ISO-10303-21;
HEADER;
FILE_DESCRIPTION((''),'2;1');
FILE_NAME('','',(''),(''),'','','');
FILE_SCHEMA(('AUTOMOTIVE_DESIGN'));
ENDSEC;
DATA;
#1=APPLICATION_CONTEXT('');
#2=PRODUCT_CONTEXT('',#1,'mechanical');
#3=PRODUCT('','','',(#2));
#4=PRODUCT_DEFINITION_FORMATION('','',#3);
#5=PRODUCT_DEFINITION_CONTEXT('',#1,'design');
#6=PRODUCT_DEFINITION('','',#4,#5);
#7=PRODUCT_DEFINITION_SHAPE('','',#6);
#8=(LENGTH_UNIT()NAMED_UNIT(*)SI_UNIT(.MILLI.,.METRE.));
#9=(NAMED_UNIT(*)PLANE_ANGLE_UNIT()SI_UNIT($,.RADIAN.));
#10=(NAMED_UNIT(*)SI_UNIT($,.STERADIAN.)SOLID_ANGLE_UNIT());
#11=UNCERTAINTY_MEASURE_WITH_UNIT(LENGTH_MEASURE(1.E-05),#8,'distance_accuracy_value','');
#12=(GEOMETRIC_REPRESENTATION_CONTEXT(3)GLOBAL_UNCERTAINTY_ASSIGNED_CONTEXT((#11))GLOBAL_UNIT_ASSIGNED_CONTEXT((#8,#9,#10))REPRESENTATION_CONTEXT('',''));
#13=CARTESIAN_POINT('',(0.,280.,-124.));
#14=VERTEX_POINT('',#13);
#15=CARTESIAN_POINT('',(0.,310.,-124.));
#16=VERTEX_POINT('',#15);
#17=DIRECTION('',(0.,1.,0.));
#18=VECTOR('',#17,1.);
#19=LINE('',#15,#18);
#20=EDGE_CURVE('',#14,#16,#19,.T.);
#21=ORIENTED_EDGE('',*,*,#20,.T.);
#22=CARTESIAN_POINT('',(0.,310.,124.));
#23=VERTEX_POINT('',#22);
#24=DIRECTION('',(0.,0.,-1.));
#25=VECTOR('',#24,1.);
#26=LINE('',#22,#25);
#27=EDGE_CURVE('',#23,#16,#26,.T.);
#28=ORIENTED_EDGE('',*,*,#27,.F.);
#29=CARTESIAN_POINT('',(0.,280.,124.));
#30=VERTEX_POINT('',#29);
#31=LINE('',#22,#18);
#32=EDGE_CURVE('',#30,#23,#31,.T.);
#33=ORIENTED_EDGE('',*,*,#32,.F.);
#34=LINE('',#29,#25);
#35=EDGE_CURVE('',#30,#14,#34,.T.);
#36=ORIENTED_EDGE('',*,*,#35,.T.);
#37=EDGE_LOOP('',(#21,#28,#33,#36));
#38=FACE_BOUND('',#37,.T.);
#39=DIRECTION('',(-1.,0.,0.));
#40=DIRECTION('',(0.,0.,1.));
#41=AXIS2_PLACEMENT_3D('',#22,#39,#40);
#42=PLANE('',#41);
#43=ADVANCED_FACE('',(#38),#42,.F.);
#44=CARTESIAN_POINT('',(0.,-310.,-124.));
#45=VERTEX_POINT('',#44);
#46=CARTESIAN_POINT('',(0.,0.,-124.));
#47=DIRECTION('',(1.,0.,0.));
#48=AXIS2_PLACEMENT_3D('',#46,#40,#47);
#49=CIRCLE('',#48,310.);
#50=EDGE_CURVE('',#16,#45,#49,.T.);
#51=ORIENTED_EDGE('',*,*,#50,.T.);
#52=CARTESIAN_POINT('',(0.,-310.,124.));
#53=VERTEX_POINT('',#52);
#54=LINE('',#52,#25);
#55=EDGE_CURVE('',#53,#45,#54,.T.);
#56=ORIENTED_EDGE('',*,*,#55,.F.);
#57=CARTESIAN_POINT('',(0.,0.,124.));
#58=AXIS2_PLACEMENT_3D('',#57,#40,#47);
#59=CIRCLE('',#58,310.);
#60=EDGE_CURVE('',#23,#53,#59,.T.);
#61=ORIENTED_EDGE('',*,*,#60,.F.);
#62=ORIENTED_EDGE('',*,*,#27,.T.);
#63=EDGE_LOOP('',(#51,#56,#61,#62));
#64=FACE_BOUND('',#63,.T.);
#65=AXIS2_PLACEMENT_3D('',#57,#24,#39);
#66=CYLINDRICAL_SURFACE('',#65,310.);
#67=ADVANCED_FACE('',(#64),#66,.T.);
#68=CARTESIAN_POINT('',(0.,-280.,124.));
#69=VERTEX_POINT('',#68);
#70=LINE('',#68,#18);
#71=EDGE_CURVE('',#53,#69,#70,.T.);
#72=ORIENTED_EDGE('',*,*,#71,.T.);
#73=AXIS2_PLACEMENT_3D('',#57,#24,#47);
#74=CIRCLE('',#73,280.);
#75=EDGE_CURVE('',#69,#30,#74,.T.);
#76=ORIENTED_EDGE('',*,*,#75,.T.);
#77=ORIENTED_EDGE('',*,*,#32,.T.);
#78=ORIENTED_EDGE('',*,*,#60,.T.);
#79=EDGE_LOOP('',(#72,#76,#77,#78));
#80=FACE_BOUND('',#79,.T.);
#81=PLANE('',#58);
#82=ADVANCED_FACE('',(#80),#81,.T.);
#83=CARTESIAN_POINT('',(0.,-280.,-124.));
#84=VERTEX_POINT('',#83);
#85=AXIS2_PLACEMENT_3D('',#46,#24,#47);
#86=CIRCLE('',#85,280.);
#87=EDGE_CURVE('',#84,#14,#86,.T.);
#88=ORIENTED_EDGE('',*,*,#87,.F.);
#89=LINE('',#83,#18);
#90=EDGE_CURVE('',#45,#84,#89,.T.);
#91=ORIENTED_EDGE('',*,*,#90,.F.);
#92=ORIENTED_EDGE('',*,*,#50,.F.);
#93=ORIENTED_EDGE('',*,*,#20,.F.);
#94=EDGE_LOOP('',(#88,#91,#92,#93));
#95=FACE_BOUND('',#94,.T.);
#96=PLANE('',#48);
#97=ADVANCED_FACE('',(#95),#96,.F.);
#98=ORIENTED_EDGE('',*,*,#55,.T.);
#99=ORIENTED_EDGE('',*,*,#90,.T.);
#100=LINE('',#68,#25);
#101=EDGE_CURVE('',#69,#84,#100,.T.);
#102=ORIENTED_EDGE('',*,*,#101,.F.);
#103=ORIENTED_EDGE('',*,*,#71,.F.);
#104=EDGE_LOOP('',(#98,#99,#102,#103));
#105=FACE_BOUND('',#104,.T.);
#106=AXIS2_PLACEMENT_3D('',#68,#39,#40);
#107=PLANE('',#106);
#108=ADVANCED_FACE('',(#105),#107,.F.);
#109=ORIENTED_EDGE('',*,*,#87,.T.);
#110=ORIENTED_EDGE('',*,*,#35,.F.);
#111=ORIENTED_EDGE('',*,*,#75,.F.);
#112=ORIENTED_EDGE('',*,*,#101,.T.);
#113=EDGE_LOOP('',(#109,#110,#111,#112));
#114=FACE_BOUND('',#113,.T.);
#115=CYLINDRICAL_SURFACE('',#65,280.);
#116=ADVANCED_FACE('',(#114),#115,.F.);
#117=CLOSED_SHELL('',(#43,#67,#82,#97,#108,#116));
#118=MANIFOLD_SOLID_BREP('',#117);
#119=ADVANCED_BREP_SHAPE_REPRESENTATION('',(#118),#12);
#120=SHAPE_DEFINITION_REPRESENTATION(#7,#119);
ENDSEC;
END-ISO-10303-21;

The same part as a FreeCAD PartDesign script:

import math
import FreeCAD as App
import Part
import Sketcher
from FreeCAD import Vector

doc = App.newDocument("Part")
params = doc.addObject("Spreadsheet::Sheet", "Params")
for row, (alias, value) in enumerate([
    ("sketch1_radius", "310 mm"),
    ("sketch1_radius2", "280 mm"),
    ("pad1_length", "124 mm"),
    ("pad1_length2", "124 mm"),
], start=1):
    params.set(f"A{row}", alias)
    params.set(f"B{row}", "=" + value)
    params.setAlias(f"B{row}", alias)

body = doc.addObject("PartDesign::Body", "Body")

# Sketch on XY plane
sketch1 = body.newObject("Sketcher::SketchObject", "Sketch")
sketch1.AttachmentSupport = (doc.getObject("XY_Plane"), [""])
sketch1.MapMode = "FlatFace"
sketch1.addGeometry([
    Part.LineSegment(Vector(0, 280, 0), Vector(0, 310, 0)),
    Part.ArcOfCircle(Part.Circle(Vector(0, 0, 0), Vector(0, 0, 1), 310), math.radians(90), math.radians(270)),
    Part.LineSegment(Vector(0, -310, 0), Vector(0, -280, 0)),
    Part.ArcOfCircle(Part.Circle(Vector(0, 0, 0), Vector(0, 0, 1), 280), math.radians(90), math.radians(270)),
], False)
sketch1.addConstraint([
    Sketcher.Constraint("Coincident", 0, 2, 1, 1),
    Sketcher.Constraint("Coincident", 1, 2, 2, 1),
    Sketcher.Constraint("Coincident", 2, 2, 3, 2),
    Sketcher.Constraint("Coincident", 3, 1, 0, 1),
    Sketcher.Constraint("Vertical", 0),
    Sketcher.Constraint("Vertical", 2),
    Sketcher.Constraint("Coincident", 1, 3, -1, 1),
    Sketcher.Constraint("Coincident", 3, 3, -1, 1),
    Sketcher.Constraint("PointOnObject", 0, 2, -2),
    Sketcher.Constraint("PointOnObject", 1, 2, -2),
    Sketcher.Constraint("Radius", 1, 310.0),
    Sketcher.Constraint("Radius", 3, 280.0),
])
sketch1.setExpression("Constraints[10]", "Params.sketch1_radius")
sketch1.setExpression("Constraints[11]", "Params.sketch1_radius2")
pad1 = body.newObject("PartDesign::Pad", "Pad")
pad1.Profile = sketch1
pad1.Type = "TwoLengths"
pad1.setExpression("Length", "Params.pad1_length")
pad1.setExpression("Length2", "Params.pad1_length2")

doc.recompute()
